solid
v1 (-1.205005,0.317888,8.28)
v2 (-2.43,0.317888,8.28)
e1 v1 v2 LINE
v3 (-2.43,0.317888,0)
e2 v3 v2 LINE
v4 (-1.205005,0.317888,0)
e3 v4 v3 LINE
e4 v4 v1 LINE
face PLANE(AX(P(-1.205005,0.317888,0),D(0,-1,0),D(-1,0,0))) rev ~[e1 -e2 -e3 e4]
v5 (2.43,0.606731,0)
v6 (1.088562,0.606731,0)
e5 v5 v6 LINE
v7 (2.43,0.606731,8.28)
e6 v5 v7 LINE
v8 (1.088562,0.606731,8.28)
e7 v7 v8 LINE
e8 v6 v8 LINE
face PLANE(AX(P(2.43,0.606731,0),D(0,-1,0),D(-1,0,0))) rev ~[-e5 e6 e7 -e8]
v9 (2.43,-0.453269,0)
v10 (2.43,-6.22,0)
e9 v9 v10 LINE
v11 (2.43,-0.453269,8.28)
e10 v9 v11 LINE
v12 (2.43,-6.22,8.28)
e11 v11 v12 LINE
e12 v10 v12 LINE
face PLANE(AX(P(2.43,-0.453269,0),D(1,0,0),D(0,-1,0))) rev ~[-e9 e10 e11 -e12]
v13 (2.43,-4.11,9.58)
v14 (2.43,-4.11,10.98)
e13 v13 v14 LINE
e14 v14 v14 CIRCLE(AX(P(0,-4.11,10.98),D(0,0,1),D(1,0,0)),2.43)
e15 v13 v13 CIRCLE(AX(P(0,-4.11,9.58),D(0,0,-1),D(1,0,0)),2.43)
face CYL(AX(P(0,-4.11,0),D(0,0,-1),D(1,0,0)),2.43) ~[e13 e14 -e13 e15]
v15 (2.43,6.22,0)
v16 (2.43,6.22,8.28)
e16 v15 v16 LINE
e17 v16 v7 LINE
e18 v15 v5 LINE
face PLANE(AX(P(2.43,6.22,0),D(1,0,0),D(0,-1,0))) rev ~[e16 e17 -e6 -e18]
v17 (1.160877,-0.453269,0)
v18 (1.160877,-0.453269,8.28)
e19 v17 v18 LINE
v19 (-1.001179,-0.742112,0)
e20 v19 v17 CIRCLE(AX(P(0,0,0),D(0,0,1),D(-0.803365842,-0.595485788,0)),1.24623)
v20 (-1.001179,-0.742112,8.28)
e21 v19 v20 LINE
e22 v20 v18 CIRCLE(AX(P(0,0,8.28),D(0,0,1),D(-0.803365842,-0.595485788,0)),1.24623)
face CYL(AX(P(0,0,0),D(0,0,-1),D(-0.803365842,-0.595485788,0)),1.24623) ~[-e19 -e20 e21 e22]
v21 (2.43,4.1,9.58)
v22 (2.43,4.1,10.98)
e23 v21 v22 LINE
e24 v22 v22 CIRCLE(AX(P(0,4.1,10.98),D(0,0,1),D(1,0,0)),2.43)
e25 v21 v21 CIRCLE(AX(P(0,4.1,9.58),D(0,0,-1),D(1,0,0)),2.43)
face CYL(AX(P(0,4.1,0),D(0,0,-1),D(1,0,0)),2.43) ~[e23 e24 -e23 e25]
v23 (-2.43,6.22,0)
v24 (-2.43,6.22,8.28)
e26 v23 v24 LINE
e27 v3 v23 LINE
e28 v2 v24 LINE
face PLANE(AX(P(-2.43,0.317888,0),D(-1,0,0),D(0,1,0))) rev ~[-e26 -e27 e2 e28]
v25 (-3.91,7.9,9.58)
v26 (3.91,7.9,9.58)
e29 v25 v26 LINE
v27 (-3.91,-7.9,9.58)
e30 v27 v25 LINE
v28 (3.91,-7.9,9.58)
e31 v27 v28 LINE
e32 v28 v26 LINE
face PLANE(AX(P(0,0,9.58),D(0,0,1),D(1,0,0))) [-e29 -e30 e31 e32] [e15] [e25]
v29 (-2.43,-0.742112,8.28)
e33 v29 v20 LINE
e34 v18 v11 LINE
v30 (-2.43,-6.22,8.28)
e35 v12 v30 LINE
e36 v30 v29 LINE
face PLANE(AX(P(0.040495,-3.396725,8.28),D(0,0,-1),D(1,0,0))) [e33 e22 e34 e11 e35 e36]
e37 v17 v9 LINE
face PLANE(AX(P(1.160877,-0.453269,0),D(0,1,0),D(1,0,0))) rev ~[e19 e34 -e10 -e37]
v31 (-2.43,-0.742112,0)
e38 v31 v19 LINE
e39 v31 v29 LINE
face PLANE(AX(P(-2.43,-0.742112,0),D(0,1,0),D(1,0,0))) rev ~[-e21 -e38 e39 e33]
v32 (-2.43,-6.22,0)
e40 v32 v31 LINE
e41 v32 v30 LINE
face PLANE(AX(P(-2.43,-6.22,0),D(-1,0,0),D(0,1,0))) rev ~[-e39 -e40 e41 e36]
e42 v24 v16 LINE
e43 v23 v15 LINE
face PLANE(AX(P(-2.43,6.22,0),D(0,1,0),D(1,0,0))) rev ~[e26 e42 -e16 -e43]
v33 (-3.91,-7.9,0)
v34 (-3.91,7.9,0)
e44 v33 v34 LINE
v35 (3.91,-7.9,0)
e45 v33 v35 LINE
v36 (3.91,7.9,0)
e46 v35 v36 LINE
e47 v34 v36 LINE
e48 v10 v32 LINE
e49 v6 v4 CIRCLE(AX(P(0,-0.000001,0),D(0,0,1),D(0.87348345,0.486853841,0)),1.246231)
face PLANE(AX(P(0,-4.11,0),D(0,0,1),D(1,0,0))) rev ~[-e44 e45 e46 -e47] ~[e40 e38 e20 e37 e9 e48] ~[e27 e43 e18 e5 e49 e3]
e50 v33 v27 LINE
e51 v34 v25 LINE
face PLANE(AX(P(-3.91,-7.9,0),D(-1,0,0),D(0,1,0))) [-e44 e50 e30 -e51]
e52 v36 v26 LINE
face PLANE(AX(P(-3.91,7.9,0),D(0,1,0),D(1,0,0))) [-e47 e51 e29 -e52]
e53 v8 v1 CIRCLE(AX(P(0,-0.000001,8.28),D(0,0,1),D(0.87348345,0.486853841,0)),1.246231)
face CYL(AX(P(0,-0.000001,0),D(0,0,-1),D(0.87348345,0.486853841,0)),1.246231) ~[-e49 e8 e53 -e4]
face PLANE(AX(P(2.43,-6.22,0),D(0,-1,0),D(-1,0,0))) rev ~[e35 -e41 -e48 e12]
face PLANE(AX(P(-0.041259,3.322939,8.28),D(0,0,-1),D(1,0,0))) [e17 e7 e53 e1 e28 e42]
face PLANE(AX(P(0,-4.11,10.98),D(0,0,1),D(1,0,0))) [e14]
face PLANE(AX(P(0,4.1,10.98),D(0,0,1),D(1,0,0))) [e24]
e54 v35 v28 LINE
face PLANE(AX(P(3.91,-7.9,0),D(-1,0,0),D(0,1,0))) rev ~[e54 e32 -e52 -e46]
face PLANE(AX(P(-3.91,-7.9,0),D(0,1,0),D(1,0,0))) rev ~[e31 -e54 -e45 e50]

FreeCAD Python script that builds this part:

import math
import FreeCAD as App
import Part
import Sketcher

V = App.Vector
Q = App.Units.Quantity


def add_polygon(sketch, points):
    """Adds a closed chain of lines whose ends are joined by coincident constraints."""
    first, n = sketch.GeometryCount, len(points)
    for a, b in zip(points, points[1:] + points[:1]):
        sketch.addGeometry(Part.LineSegment(App.Vector(*a, 0), App.Vector(*b, 0)), False)
    for i in range(n):
        sketch.addConstraint(Sketcher.Constraint("Coincident", first + i, 2, first + (i + 1) % n, 1))

doc = App.newDocument("Part")
body = doc.addObject("PartDesign::Body", "Body")

# Sketch on XY plane
sketch1 = body.newObject("Sketcher::SketchObject", "Sketch")
sketch1.AttachmentSupport = (doc.getObject("XY_Plane"), [""])
sketch1.MapMode = "FlatFace"
add_polygon(sketch1, [(-4, 8), (-4, -8), (4, -8), (4, 8)])  # lines 0-3
sketch1.addConstraint([
    Sketcher.Constraint("Vertical", 0),
    Sketcher.Constraint("Horizontal", 1),
    Sketcher.Constraint("Vertical", 2),
    Sketcher.Constraint("Horizontal", 3),
    Sketcher.Constraint("Symmetric", 0, 2, 2, 2, -1, 1),
    Sketcher.Constraint("DistanceY", 0, 2, 0, 1, Q("15.8 mm")),
    Sketcher.Constraint("DistanceX", 1, 1, 1, 2, Q("7.82 mm")),
])
pad1 = body.newObject("PartDesign::Pad", "Pad")
pad1.Profile = sketch1
pad1.Length = 9.58

# Sketch on XY plane
sketch2 = body.newObject("Sketcher::SketchObject", "Sketch001")
sketch2.AttachmentSupport = (doc.getObject("XY_Plane"), [""])
sketch2.MapMode = "FlatFace"
sketch2.addGeometry([
    Part.Circle(V(0, -4.1, 0), V(0, 0, 1), 2.4),
    Part.Circle(V(0, 4.1, 0), V(0, 0, 1), 2.4),
], False)
sketch2.addConstraint([
    Sketcher.Constraint("Equal", 0, 1),
    Sketcher.Constraint("PointOnObject", 0, 3, -2),
    Sketcher.Constraint("PointOnObject", 1, 3, -2),
    Sketcher.Constraint("Diameter", 0, Q("4.86 mm")),
    Sketcher.Constraint("DistanceY", -1, 1, 1, 3, Q("4.1 mm")),
    Sketcher.Constraint("DistanceY", 0, 3, -1, 1, Q("4.11 mm")),
])
pad2 = body.newObject("PartDesign::Pad", "Pad001")
pad2.Profile = sketch2
pad2.Length = 10.98

# Sketch on XY plane
sketch3 = body.newObject("Sketcher::SketchObject", "Sketch002")
sketch3.AttachmentSupport = (doc.getObject("XY_Plane"), [""])
sketch3.MapMode = "FlatFace"
sketch3.addGeometry([
    Part.LineSegment(V(-2.4, 0.3, 0), V(-2.4, 6.2, 0)),  # 0
    Part.LineSegment(V(-2.4, 6.2, 0), V(2.4, 6.2, 0)),  # 1
    Part.LineSegment(V(2.4, 6.2, 0), V(2.4, 0.6, 0)),  # 2
    Part.LineSegment(V(2.4, 0.6, 0), V(1.1, 0.6, 0)),  # 3
    Part.ArcOfCircle(Part.Circle(V(0, 0, 0), V(0, 0, 1), 1.2), math.radians(29), math.radians(165)),  # 4
    Part.LineSegment(V(-1.2, 0.3, 0), V(-2.4, 0.3, 0)),  # 5
    Part.LineSegment(V(-2.4, -6.2, 0), V(-2.4, -0.7, 0)),  # 6
    Part.LineSegment(V(-2.4, -0.7, 0), V(-1, -0.7, 0)),  # 7
    Part.ArcOfCircle(Part.Circle(V(0, 0, 0), V(0, 0, 1), 1.2), math.radians(-143), math.radians(-21)),  # 8
    Part.LineSegment(V(1.2, -0.5, 0), V(2.4, -0.5, 0)),  # 9
    Part.LineSegment(V(2.4, -0.5, 0), V(2.4, -6.2, 0)),  # 10
    Part.LineSegment(V(2.4, -6.2, 0), V(-2.4, -6.2, 0)),  # 11
], False)
sketch3.addConstraint([
    Sketcher.Constraint("Coincident", 0, 2, 1, 1),
    Sketcher.Constraint("Coincident", 1, 2, 2, 1),
    Sketcher.Constraint("Coincident", 2, 2, 3, 1),
    Sketcher.Constraint("Coincident", 3, 2, 4, 1),
    Sketcher.Constraint("Coincident", 4, 2, 5, 1),
    Sketcher.Constraint("Coincident", 5, 2, 0, 1),
    Sketcher.Constraint("Coincident", 6, 2, 7, 1),
    Sketcher.Constraint("Coincident", 7, 2, 8, 1),
    Sketcher.Constraint("Coincident", 8, 2, 9, 1),
    Sketcher.Constraint("Coincident", 9, 2, 10, 1),
    Sketcher.Constraint("Coincident", 10, 2, 11, 1),
    Sketcher.Constraint("Coincident", 11, 2, 6, 1),
    Sketcher.Constraint("Vertical", 0),
    Sketcher.Constraint("Horizontal", 1),
    Sketcher.Constraint("Vertical", 2),
    Sketcher.Constraint("Horizontal", 3),
    Sketcher.Constraint("Horizontal", 5),
    Sketcher.Constraint("Vertical", 6),
    Sketcher.Constraint("Horizontal", 7),
    Sketcher.Constraint("Horizontal", 9),
    Sketcher.Constraint("Vertical", 10),
    Sketcher.Constraint("Horizontal", 11),
    Sketcher.Constraint("Coincident", 4, 3, -1, 1),
    Sketcher.Constraint("Coincident", 8, 3, -1, 1),
    Sketcher.Constraint("Equal", 4, 8),
    Sketcher.Constraint("Symmetric", 0, 2, 10, 2, -1, 1),
    Sketcher.Constraint("Vertical", 5, 2, 6, 2),
    Sketcher.Constraint("Vertical", 2, 2, 9, 2),
    Sketcher.Constraint("DistanceX", 1, 1, 1, 2, Q("4.86 mm")),
    Sketcher.Constraint("DistanceY", -1, 1, 0, 2, Q("6.22 mm")),
    Sketcher.Constraint("Radius", 4, Q("1.246231 mm")),
    Sketcher.Constraint("DistanceY", 6, 2, 5, 2, Q("1.06 mm")),
    Sketcher.Constraint("DistanceY", 8, 2, 3, 2, Q("1.06 mm")),
    Sketcher.Constraint("DistanceX", 3, 2, 3, 1, Q("1.341438 mm")),
    Sketcher.Constraint("DistanceX", 7, 1, 7, 2, Q("1.428821 mm")),
])
pocket1 = body.newObject("PartDesign::Pocket", "Pocket")
pocket1.Profile = sketch3
pocket1.Length = 8.28
pocket1.Reversed = True

doc.recompute()
